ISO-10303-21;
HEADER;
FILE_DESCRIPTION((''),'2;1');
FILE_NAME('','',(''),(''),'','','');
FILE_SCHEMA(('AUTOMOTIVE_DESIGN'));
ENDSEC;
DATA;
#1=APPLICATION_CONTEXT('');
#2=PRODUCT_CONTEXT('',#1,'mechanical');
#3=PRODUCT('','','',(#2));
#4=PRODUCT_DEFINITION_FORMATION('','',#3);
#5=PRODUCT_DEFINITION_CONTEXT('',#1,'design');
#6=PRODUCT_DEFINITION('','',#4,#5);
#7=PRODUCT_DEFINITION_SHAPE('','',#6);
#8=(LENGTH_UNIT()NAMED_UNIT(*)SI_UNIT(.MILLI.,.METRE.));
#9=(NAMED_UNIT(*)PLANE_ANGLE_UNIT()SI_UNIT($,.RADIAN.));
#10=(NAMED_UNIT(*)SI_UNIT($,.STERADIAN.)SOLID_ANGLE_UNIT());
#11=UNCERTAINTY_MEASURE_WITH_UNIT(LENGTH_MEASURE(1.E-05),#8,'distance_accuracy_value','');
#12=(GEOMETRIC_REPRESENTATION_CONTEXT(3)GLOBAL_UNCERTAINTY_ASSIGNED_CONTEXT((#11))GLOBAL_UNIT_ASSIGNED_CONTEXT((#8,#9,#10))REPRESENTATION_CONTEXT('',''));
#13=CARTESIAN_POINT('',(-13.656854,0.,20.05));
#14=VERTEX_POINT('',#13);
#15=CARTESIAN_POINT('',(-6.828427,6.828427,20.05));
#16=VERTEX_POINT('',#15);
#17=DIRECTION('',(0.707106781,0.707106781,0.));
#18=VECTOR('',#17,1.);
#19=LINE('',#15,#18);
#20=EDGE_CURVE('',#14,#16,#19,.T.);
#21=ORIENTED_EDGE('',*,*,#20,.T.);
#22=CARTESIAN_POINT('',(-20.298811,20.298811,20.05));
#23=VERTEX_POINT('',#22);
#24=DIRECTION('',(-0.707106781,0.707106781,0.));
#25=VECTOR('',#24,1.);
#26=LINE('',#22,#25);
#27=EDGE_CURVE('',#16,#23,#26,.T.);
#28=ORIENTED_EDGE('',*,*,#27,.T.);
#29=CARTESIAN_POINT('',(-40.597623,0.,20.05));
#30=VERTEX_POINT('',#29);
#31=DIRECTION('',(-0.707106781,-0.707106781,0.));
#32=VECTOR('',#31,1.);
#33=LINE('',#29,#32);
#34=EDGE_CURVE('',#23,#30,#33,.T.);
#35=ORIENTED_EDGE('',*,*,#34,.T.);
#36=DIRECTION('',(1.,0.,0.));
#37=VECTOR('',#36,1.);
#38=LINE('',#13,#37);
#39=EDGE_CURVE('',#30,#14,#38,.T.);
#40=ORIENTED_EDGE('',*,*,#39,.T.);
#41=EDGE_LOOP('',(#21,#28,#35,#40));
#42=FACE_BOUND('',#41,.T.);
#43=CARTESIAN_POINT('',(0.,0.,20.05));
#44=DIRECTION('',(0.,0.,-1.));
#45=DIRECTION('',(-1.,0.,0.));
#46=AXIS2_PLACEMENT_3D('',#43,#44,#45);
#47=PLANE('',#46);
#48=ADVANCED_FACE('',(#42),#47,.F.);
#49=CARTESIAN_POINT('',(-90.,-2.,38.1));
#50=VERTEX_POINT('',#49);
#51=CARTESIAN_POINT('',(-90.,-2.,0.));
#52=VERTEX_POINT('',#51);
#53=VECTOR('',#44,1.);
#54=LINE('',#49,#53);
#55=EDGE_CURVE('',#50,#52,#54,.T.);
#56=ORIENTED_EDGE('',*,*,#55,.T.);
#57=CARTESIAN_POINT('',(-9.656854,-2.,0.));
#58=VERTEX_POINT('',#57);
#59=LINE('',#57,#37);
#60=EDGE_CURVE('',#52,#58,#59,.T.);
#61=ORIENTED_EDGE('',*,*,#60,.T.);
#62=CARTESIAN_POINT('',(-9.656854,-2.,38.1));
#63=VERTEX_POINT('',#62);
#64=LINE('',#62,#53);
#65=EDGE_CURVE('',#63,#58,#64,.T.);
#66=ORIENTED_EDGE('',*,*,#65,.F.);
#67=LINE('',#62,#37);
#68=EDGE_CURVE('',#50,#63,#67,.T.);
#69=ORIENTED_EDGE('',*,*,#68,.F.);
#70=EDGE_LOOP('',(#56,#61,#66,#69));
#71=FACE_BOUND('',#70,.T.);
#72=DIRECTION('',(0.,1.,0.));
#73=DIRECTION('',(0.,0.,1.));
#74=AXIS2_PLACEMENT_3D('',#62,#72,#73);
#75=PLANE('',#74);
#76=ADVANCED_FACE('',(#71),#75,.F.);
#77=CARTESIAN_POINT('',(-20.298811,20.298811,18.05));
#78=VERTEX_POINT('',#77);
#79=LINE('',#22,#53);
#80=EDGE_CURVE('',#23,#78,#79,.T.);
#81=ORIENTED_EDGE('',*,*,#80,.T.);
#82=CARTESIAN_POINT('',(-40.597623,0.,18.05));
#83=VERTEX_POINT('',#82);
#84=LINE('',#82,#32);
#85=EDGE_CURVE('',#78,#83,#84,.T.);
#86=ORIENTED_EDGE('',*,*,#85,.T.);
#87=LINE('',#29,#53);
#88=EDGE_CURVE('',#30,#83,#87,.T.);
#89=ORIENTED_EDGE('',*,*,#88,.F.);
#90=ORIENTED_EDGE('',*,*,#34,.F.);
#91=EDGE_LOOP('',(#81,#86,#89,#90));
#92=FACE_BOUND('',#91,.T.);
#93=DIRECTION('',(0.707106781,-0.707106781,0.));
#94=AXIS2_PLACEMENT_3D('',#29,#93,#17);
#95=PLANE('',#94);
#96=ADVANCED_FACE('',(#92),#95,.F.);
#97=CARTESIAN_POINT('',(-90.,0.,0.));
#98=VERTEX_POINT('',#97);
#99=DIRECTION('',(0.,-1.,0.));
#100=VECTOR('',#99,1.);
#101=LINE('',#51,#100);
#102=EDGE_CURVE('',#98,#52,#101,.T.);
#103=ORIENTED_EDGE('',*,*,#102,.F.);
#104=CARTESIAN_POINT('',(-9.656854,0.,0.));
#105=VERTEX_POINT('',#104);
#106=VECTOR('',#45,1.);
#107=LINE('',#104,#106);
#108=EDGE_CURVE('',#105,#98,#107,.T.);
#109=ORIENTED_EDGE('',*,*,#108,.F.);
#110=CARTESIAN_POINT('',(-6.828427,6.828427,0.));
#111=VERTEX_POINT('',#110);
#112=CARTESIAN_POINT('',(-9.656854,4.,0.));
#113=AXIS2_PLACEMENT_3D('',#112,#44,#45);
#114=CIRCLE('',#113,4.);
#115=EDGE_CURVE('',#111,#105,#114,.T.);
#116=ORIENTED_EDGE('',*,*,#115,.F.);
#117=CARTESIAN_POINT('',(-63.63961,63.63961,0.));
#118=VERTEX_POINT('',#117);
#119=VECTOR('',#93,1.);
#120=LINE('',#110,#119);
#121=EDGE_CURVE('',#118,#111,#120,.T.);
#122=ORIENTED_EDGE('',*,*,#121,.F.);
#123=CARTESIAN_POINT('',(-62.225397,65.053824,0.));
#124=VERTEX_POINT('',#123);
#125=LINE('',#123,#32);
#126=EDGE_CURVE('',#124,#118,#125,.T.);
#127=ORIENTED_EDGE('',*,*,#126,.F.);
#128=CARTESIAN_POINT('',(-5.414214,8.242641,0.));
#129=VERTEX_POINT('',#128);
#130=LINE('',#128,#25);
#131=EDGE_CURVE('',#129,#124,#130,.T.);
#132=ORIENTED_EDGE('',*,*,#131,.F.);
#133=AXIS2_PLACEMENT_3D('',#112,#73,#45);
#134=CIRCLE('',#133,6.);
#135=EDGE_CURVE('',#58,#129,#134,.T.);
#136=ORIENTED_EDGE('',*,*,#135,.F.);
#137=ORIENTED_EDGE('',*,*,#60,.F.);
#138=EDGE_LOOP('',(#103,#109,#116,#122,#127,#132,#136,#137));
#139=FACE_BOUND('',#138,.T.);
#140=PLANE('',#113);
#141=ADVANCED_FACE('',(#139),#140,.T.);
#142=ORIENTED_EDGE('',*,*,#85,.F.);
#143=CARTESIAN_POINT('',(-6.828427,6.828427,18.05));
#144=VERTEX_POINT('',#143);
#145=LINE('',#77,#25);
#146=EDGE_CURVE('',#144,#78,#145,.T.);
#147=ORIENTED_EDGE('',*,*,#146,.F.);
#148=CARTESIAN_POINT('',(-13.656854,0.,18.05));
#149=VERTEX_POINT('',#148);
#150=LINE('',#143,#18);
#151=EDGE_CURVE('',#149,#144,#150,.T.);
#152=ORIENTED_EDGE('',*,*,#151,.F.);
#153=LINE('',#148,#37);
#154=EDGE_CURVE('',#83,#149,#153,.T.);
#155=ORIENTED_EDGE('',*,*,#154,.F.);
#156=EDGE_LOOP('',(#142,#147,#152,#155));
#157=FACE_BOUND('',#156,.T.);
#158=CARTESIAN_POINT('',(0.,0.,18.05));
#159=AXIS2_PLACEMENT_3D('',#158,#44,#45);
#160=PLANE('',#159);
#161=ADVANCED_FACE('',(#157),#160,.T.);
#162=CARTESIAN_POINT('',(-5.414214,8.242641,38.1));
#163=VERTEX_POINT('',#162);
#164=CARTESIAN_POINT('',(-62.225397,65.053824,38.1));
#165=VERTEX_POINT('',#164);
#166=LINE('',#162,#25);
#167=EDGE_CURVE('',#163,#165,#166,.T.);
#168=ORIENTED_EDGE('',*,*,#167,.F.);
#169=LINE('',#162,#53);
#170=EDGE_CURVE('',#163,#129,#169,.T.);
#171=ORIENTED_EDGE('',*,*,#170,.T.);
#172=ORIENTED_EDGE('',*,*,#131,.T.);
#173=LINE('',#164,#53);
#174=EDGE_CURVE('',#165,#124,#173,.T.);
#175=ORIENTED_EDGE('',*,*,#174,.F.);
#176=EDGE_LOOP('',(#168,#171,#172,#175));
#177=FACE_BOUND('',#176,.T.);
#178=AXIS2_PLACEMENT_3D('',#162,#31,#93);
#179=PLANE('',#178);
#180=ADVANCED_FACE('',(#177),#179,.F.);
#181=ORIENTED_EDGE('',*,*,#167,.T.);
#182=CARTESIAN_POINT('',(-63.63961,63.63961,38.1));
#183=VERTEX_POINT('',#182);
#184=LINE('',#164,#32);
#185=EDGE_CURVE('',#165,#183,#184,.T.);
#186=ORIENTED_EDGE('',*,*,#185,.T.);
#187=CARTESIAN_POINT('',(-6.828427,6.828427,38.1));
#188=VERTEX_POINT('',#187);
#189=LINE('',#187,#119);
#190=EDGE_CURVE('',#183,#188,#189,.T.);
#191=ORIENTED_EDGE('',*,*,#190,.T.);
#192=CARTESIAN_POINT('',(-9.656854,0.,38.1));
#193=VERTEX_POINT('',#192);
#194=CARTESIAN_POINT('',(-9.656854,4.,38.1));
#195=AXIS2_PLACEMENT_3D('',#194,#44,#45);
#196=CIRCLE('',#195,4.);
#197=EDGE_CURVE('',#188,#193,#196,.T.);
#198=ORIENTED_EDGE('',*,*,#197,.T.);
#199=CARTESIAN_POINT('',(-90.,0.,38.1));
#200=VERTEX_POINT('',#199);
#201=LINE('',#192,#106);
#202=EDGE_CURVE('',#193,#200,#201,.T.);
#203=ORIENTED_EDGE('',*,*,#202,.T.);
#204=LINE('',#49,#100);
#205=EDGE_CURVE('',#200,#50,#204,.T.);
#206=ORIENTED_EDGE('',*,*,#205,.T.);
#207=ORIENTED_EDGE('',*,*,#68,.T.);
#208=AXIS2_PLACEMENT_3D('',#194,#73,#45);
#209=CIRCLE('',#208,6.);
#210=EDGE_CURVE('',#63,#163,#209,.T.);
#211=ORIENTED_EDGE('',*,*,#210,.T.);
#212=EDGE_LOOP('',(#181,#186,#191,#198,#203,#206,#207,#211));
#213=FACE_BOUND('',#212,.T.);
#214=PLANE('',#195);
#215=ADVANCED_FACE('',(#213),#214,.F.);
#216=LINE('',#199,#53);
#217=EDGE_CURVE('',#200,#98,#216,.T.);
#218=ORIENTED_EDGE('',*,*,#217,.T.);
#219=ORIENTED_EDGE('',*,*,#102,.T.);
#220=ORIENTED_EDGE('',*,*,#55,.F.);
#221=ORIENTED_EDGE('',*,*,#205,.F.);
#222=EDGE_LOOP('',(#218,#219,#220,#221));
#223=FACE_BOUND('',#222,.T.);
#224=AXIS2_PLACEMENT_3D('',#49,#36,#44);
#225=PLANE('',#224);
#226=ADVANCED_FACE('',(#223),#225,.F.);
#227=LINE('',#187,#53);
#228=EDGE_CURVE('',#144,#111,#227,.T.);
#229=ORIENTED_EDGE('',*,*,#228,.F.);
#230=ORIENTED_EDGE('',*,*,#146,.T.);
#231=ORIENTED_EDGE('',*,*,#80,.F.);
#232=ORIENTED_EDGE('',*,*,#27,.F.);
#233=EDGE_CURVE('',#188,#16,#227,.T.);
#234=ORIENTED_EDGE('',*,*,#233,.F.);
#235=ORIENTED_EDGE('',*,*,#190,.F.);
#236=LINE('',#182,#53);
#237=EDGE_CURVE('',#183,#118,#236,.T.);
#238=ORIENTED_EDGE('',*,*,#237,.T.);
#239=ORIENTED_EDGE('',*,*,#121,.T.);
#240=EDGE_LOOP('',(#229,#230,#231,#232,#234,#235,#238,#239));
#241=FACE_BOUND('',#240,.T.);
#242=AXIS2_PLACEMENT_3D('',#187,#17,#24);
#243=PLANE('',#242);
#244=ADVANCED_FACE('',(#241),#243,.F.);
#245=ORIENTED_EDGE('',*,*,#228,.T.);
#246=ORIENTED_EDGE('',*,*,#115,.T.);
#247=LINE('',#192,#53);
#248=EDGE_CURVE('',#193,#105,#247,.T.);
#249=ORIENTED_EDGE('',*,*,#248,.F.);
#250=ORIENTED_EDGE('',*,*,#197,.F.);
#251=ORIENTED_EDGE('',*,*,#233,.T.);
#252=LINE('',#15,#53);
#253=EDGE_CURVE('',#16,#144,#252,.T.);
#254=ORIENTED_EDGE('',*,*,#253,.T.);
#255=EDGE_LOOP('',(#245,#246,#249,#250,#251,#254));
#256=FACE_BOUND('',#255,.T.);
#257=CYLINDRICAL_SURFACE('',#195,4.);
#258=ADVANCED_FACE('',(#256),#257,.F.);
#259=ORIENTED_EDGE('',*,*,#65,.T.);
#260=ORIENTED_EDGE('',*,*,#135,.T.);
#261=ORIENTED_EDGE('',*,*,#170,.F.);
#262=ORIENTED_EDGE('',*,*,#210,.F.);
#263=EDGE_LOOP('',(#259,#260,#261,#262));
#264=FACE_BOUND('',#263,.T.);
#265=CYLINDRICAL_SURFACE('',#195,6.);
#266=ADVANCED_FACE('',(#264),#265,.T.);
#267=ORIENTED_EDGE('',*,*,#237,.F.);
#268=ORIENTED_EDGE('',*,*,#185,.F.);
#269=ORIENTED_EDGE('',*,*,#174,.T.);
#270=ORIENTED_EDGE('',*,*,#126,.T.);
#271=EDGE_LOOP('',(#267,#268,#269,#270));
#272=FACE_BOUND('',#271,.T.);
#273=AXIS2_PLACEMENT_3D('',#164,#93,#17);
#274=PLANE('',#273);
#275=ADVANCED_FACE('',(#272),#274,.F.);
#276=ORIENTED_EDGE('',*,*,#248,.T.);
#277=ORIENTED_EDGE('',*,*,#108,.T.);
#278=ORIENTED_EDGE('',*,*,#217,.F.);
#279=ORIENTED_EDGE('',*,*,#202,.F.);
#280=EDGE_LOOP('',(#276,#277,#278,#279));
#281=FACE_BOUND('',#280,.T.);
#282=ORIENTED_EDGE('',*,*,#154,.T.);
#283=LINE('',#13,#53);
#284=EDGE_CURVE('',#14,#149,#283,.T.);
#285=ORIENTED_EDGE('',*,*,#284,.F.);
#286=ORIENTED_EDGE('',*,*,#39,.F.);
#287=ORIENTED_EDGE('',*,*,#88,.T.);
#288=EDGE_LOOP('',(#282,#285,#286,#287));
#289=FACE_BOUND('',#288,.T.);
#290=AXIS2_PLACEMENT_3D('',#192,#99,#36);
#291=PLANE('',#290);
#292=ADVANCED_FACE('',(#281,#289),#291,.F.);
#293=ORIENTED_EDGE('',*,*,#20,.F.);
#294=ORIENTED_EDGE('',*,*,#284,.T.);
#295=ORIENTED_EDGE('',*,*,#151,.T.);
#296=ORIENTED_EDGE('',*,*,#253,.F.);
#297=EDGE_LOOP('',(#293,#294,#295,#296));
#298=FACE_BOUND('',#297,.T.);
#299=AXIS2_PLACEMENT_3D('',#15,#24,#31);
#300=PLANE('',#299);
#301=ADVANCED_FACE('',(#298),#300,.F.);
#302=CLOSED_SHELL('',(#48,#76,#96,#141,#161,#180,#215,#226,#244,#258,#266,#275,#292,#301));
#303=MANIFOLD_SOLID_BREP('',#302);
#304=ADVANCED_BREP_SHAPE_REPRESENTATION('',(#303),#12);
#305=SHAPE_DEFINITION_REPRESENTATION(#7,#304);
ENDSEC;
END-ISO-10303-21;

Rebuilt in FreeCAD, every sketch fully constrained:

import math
import FreeCAD as App
import Part
import Sketcher
from FreeCAD import Vector
Q = App.Units.Quantity


def add_polygon(sketch, points):
    """Adds a closed chain of lines whose ends are joined by coincident constraints."""
    first, n = sketch.GeometryCount, len(points)
    for a, b in zip(points, points[1:] + points[:1]):
        sketch.addGeometry(Part.LineSegment(App.Vector(*a, 0), App.Vector(*b, 0)), False)
    for i in range(n):
        sketch.addConstraint(Sketcher.Constraint("Coincident", first + i, 2, first + (i + 1) % n, 1))

doc = App.newDocument("Part")
body = doc.addObject("PartDesign::Body", "Body")

# Sketch on XY plane
sketch1 = doc.addObject("Sketcher::SketchObject", "Sketch")
body.addObject(sketch1)
sketch1.AttachmentSupport = (doc.XY_Plane, [""])
sketch1.MapMode = "FlatFace"
sketch1.addGeometry(Part.LineSegment(Vector(-63.6, 63.6, 0), Vector(-6.8, 6.8, 0)), False)
sketch1.addGeometry(Part.ArcOfCircle(Part.Circle(Vector(-9.7, 4, 0), Vector(0, 0, 1), 4), math.radians(-90), math.radians(45)), False)
sketch1.addGeometry(Part.LineSegment(Vector(-9.7, 0, 0), Vector(-90, 0, 0)), False)
sketch1.addGeometry(Part.LineSegment(Vector(-90, 0, 0), Vector(-90, -2, 0)), False)
sketch1.addGeometry(Part.LineSegment(Vector(-90, -2, 0), Vector(-9.7, -2, 0)), False)
sketch1.addGeometry(Part.ArcOfCircle(Part.Circle(Vector(-9.7, 4, 0), Vector(0, 0, 1), 6), math.radians(-90), math.radians(45)), False)
sketch1.addGeometry(Part.LineSegment(Vector(-5.4, 8.2, 0), Vector(-62.2, 65.1, 0)), False)
sketch1.addGeometry(Part.LineSegment(Vector(-62.2, 65.1, 0), Vector(-63.6, 63.6, 0)), False)
sketch1.addConstraint(Sketcher.Constraint("Tangent", 0, 2, 1, 2))
sketch1.addConstraint(Sketcher.Constraint("Tangent", 1, 1, 2, 1))
sketch1.addConstraint(Sketcher.Constraint("Coincident", 2, 2, 3, 1))
sketch1.addConstraint(Sketcher.Constraint("Coincident", 3, 2, 4, 1))
sketch1.addConstraint(Sketcher.Constraint("Tangent", 4, 2, 5, 1))
sketch1.addConstraint(Sketcher.Constraint("Tangent", 5, 2, 6, 1))
sketch1.addConstraint(Sketcher.Constraint("Coincident", 6, 2, 7, 1))
sketch1.addConstraint(Sketcher.Constraint("Coincident", 7, 2, 0, 1))
sketch1.addConstraint(Sketcher.Constraint("Horizontal", 2))
sketch1.addConstraint(Sketcher.Constraint("Vertical", 3))
sketch1.addConstraint(Sketcher.Constraint("Horizontal", 4))
sketch1.addConstraint(Sketcher.Constraint("Coincident", 5, 3, 1, 3))
sketch1.addConstraint(Sketcher.Constraint("PointOnObject", 1, 1, -1))
sketch1.addConstraint(Sketcher.Constraint("Parallel", 0, 6))
sketch1.addConstraint(Sketcher.Constraint("Perpendicular", 6, 7))
sketch1.addConstraint(Sketcher.Constraint("Radius", 1, Q("4 mm")))
sketch1.addConstraint(Sketcher.Constraint("Radius", 5, Q("6 mm")))
sketch1.addConstraint(Sketcher.Constraint("Angle", 0, Q("-45 deg")))
sketch1.addConstraint(Sketcher.Constraint("DistanceX", 2, 2, -1, 1, Q("90 mm")))
sketch1.addConstraint(Sketcher.Constraint("DistanceX", 2, 2, 2, 1, Q("80.343146 mm")))
sketch1.addConstraint(Sketcher.Constraint("DistanceX", 7, 2, -1, 1, Q("63.63961 mm")))
pad1 = doc.addObject("PartDesign::Pad", "Pad")
body.addObject(pad1)
pad1.Profile = sketch1
pad1.Length = 38.1

# Sketch on XY plane
sketch2 = doc.addObject("Sketcher::SketchObject", "Sketch001")
body.addObject(sketch2)
sketch2.AttachmentSupport = (doc.XY_Plane, [""])
sketch2.MapMode = "FlatFace"
sketch2.AttachmentOffset = App.Placement(Vector(0, 0, 19.05), App.Rotation())
add_polygon(sketch2, [(-20, 20), (-41, 0), (-14, 0), (-7, 7)])  # lines 0-3
sketch2.addConstraint(Sketcher.Constraint("Horizontal", 1))
sketch2.addConstraint(Sketcher.Constraint("PointOnObject", 0, 2, -1))
sketch2.addConstraint(Sketcher.Constraint("Parallel", 0, 2))
sketch2.addConstraint(Sketcher.Constraint("Perpendicular", 2, 3))
sketch2.addConstraint(Sketcher.Constraint("Angle", 0, Q("-135 deg")))
sketch2.addConstraint(Sketcher.Constraint("Distance", 3, Q("19.05 mm")))
sketch2.addConstraint(Sketcher.Constraint("DistanceX", 3, 2, -1, 1, Q("20.298811 mm")))
sketch2.addConstraint(Sketcher.Constraint("DistanceY", -1, 1, 3, 2, Q("20.298811 mm")))
pad2 = doc.addObject("PartDesign::Pad", "Pad001")
body.addObject(pad2)
pad2.Profile = sketch2
pad2.Length = 2
pad2.Midplane = True

doc.recompute()
